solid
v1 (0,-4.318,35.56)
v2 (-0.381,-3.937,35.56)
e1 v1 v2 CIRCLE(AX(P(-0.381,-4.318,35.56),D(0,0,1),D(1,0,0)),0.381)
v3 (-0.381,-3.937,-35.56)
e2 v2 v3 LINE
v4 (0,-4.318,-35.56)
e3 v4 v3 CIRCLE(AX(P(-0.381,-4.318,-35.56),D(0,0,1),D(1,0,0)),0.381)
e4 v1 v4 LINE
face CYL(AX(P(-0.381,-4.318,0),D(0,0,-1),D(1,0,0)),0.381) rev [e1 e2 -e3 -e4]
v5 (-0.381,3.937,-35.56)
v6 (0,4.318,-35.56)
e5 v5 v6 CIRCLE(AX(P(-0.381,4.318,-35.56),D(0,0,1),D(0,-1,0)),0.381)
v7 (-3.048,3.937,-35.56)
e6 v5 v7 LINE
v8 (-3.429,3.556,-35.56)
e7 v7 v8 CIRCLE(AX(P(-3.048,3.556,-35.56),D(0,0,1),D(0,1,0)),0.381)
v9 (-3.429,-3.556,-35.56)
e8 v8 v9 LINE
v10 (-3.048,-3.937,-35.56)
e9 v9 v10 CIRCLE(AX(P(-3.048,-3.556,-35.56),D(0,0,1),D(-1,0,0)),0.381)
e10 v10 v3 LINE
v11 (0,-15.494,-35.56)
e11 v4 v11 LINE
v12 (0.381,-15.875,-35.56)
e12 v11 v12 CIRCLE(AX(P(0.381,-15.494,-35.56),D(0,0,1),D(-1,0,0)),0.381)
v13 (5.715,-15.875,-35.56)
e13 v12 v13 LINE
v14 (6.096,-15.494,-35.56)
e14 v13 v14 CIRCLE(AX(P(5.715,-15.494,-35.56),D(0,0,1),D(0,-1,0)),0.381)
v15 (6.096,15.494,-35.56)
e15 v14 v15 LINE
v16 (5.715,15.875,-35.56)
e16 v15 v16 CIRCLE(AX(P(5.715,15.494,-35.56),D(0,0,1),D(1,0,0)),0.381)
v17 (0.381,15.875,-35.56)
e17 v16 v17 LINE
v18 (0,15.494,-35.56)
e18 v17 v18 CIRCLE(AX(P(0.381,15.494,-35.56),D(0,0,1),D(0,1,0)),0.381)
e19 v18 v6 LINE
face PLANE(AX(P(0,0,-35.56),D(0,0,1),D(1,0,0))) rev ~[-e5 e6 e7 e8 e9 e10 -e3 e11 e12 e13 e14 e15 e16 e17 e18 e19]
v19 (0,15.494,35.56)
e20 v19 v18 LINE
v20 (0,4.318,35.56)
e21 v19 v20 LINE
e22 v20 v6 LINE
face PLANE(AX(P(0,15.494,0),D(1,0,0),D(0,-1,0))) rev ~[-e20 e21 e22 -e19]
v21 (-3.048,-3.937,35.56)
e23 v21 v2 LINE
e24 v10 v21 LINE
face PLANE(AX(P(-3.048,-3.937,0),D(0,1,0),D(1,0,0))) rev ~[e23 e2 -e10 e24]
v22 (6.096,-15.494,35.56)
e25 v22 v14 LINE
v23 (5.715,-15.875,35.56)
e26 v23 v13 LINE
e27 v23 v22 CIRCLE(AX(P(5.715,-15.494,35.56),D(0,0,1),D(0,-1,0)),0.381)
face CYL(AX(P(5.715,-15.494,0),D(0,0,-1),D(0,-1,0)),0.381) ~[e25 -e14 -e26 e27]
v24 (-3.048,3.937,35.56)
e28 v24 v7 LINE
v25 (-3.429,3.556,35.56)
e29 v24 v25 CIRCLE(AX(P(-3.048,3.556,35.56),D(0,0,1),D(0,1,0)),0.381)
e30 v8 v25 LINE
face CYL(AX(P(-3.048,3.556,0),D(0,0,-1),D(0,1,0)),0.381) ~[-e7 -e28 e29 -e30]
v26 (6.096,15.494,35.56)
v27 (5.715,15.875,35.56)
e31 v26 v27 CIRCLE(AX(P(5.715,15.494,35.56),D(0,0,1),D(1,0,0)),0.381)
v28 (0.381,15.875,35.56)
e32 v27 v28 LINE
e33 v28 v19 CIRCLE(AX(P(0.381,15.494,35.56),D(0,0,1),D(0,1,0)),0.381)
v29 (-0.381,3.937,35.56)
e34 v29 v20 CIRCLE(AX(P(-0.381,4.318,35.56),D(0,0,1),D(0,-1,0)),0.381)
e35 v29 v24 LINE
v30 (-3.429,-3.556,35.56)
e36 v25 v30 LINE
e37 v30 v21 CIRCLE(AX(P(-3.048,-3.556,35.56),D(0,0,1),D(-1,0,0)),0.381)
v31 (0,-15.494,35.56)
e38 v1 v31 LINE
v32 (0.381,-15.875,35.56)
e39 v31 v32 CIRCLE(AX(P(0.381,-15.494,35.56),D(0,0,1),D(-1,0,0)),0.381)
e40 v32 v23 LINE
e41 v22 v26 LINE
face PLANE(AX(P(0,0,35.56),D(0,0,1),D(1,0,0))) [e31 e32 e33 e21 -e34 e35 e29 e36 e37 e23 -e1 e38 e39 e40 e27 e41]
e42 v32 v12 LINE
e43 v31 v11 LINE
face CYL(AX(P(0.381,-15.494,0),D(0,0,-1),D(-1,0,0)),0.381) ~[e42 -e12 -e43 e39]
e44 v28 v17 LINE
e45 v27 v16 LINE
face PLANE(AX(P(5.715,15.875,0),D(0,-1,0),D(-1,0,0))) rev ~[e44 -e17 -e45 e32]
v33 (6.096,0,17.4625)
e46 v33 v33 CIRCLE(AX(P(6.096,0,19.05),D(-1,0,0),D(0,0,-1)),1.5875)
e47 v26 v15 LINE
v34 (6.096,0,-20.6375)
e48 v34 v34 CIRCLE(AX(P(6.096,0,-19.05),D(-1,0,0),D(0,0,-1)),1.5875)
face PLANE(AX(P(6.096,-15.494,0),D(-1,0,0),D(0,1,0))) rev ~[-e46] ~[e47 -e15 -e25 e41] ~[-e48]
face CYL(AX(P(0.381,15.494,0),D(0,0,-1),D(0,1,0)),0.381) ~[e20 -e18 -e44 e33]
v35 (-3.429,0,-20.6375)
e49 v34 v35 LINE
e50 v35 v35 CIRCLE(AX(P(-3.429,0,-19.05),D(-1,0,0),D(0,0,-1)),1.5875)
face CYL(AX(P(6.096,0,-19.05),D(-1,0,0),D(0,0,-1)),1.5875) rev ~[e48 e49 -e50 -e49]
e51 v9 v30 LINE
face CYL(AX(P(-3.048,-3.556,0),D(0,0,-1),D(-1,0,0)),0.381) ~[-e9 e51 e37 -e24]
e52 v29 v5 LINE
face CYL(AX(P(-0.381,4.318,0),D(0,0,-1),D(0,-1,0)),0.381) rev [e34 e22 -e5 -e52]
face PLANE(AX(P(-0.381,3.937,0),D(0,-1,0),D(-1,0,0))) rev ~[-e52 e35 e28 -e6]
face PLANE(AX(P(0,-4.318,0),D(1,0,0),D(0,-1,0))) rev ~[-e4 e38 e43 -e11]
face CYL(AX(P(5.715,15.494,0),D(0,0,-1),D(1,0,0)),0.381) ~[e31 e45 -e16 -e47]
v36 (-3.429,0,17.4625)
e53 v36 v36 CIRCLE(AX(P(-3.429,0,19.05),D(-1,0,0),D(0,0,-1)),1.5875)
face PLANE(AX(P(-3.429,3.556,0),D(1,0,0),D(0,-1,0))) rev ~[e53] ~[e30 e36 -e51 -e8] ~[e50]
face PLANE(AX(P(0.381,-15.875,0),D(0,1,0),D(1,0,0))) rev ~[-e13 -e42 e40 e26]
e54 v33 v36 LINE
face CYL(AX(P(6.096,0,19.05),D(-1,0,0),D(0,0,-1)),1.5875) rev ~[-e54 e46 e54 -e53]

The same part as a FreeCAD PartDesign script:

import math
import FreeCAD as App
import Part
import Sketcher
from FreeCAD import Vector
Q = App.Units.Quantity

doc = App.newDocument("Part")
params = doc.addObject("Spreadsheet::Sheet", "Params")
for row, (alias, value) in enumerate([
    ("sketch1_radius", "0.015 in"),
    ("sketch1_width", "0.21 in"),
    ("sketch1_height", "0.28 in"),
    ("sketch1_height2", "0.44 in"),
    ("sketch1_width2", "0.105 in"),
    ("pad1_length", "2.8 in"),
    ("sketch2_diameter", "0.125 in"),
    ("hole_diameter", "0.125 in"),
    ("hole_depth", "0.375 in"),
    ("sketch3_diameter", "0.125 in"),
    ("hole2_diameter", "0.125 in"),
    ("hole2_depth", "0.375 in"),
], start=1):
    params.set(f"A{row}", alias)
    params.set(f"B{row}", "=" + value)
    params.setAlias(f"B{row}", alias)

body = doc.addObject("PartDesign::Body", "Body")

sketch1 = body.newObject("Sketcher::SketchObject", "Sketch")
sketch1.AttachmentSupport = (doc.getObject("XY_Plane"), [""])
sketch1.MapMode = "FlatFace"
sketch1.addGeometry([
    Part.ArcOfCircle(Part.Circle(Vector(-3.048, 3.556, 0), Vector(0, 0, 1), 0.381), math.radians(90), math.radians(180)),
    Part.LineSegment(Vector(-3.429, 3.556, 0), Vector(-3.429, -3.556, 0)),
    Part.ArcOfCircle(Part.Circle(Vector(-3.048, -3.556, 0), Vector(0, 0, 1), 0.381), math.radians(180), math.radians(270)),
    Part.LineSegment(Vector(-3.048, -3.937, 0), Vector(-0.381, -3.937, 0)),
    Part.ArcOfCircle(Part.Circle(Vector(-0.381, -4.318, 0), Vector(0, 0, 1), 0.381), math.radians(0), math.radians(90)),
    Part.LineSegment(Vector(0, -4.318, 0), Vector(0, -15.494, 0)),
    Part.ArcOfCircle(Part.Circle(Vector(0.381, -15.494, 0), Vector(0, 0, 1), 0.381), math.radians(180), math.radians(270)),
    Part.LineSegment(Vector(0.381, -15.875, 0), Vector(5.715, -15.875, 0)),
    Part.ArcOfCircle(Part.Circle(Vector(5.715, -15.494, 0), Vector(0, 0, 1), 0.381), math.radians(-90), math.radians(0)),
    Part.LineSegment(Vector(6.096, -15.494, 0), Vector(6.096, 15.494, 0)),
    Part.ArcOfCircle(Part.Circle(Vector(5.715, 15.494, 0), Vector(0, 0, 1), 0.381), math.radians(0), math.radians(90)),
    Part.LineSegment(Vector(5.715, 15.875, 0), Vector(0.381, 15.875, 0)),
    Part.ArcOfCircle(Part.Circle(Vector(0.381, 15.494, 0), Vector(0, 0, 1), 0.381), math.radians(90), math.radians(180)),
    Part.LineSegment(Vector(0, 15.494, 0), Vector(0, 4.318, 0)),
    Part.ArcOfCircle(Part.Circle(Vector(-0.381, 4.318, 0), Vector(0, 0, 1), 0.381), math.radians(-90), math.radians(0)),
    Part.LineSegment(Vector(-0.381, 3.937, 0), Vector(-3.048, 3.937, 0)),
], False)
sketch1.addConstraint([
    Sketcher.Constraint("Tangent", 0, 2, 1, 1),
    Sketcher.Constraint("Tangent", 1, 2, 2, 1),
    Sketcher.Constraint("Tangent", 2, 2, 3, 1),
    Sketcher.Constraint("Tangent", 3, 2, 4, 2),
    Sketcher.Constraint("Tangent", 4, 1, 5, 1),
    Sketcher.Constraint("Tangent", 5, 2, 6, 1),
    Sketcher.Constraint("Tangent", 6, 2, 7, 1),
    Sketcher.Constraint("Tangent", 7, 2, 8, 1),
    Sketcher.Constraint("Tangent", 8, 2, 9, 1),
    Sketcher.Constraint("Tangent", 9, 2, 10, 1),
    Sketcher.Constraint("Tangent", 10, 2, 11, 1),
    Sketcher.Constraint("Tangent", 11, 2, 12, 1),
    Sketcher.Constraint("Tangent", 12, 2, 13, 1),
    Sketcher.Constraint("Tangent", 13, 2, 14, 2),
    Sketcher.Constraint("Tangent", 14, 1, 15, 1),
    Sketcher.Constraint("Tangent", 15, 2, 0, 1),
    Sketcher.Constraint("Vertical", 1),
    Sketcher.Constraint("Horizontal", 3),
    Sketcher.Constraint("Vertical", 5),
    Sketcher.Constraint("Horizontal", 7),
    Sketcher.Constraint("Vertical", 9),
    Sketcher.Constraint("Horizontal", 11),
    Sketcher.Constraint("Vertical", 13),
    Sketcher.Constraint("Horizontal", 15),
    Sketcher.Constraint("Equal", 0, 2),
    Sketcher.Constraint("Equal", 2, 4),
    Sketcher.Constraint("Equal", 4, 6),
    Sketcher.Constraint("Equal", 6, 8),
    Sketcher.Constraint("Equal", 8, 10),
    Sketcher.Constraint("Equal", 10, 12),
    Sketcher.Constraint("Equal", 12, 14),
    Sketcher.Constraint("Symmetric", 5, 2, 12, 2, -1, 1),
    Sketcher.Constraint("Symmetric", 4, 3, 14, 3, -1),
    Sketcher.Constraint("Radius", 0, Q("0.015 in")),
    Sketcher.Constraint("DistanceX", 7, 1, 7, 2, Q("0.21 in")),
    Sketcher.Constraint("DistanceY", 1, 2, 1, 1, Q("0.28 in")),
    Sketcher.Constraint("DistanceY", 5, 2, 5, 1, Q("0.44 in")),
    Sketcher.Constraint("DistanceX", 3, 1, 3, 2, Q("0.105 in")),
])
sketch1.setExpression("Constraints[33]", "Params.sketch1_radius")
sketch1.setExpression("Constraints[34]", "Params.sketch1_width")
sketch1.setExpression("Constraints[35]", "Params.sketch1_height")
sketch1.setExpression("Constraints[36]", "Params.sketch1_height2")
sketch1.setExpression("Constraints[37]", "Params.sketch1_width2")
pad1 = body.newObject("PartDesign::Pad", "Pad")
pad1.Profile = sketch1
pad1.setExpression("Length", "Params.pad1_length")
pad1.Midplane = True

sketch2 = body.newObject("Sketcher::SketchObject", "Sketch001")
sketch2.AttachmentSupport = (doc.getObject("YZ_Plane"), [""])
sketch2.MapMode = "FlatFace"
sketch2.AttachmentOffset = App.Placement(Vector(0, 0, 0.24 * 25.4), App.Rotation())
sketch2.addGeometry(Part.Circle(Vector(0, 19.05, 0), Vector(0, 0, 1), 1.5875), False)
sketch2.addConstraint([
    Sketcher.Constraint("PointOnObject", 0, 3, -2),
    Sketcher.Constraint("Diameter", 0, Q("0.125 in")),
    Sketcher.Constraint("DistanceY", -1, 1, 0, 3, Q("0.75 in")),
])
sketch2.setExpression("Constraints[1]", "Params.sketch2_diameter")
doc.recompute()
hole = body.newObject("PartDesign::Hole", "Hole")
hole.Profile = sketch2
hole.ThreadType = "None"
hole.setExpression("Diameter", "Params.hole_diameter")
hole.DepthType = "Dimension"
hole.setExpression("Depth", "Params.hole_depth")
hole.DrillPoint = "Flat"

sketch3 = body.newObject("Sketcher::SketchObject", "Sketch002")
sketch3.AttachmentSupport = (doc.getObject("YZ_Plane"), [""])
sketch3.MapMode = "FlatFace"
sketch3.AttachmentOffset = App.Placement(Vector(0, 0, 0.24 * 25.4), App.Rotation())
sketch3.addGeometry(Part.Circle(Vector(0, -19.05, 0), Vector(0, 0, 1), 1.5875), False)
sketch3.addConstraint([
    Sketcher.Constraint("PointOnObject", 0, 3, -2),
    Sketcher.Constraint("Diameter", 0, Q("0.125 in")),
    Sketcher.Constraint("DistanceY", 0, 3, -1, 1, Q("0.75 in")),
])
sketch3.setExpression("Constraints[1]", "Params.sketch3_diameter")
doc.recompute()
hole2 = body.newObject("PartDesign::Hole", "Hole001")
hole2.Profile = sketch3
hole2.ThreadType = "None"
hole2.setExpression("Diameter", "Params.hole2_diameter")
hole2.DepthType = "Dimension"
hole2.setExpression("Depth", "Params.hole2_depth")
hole2.DrillPoint = "Flat"

doc.recompute()
